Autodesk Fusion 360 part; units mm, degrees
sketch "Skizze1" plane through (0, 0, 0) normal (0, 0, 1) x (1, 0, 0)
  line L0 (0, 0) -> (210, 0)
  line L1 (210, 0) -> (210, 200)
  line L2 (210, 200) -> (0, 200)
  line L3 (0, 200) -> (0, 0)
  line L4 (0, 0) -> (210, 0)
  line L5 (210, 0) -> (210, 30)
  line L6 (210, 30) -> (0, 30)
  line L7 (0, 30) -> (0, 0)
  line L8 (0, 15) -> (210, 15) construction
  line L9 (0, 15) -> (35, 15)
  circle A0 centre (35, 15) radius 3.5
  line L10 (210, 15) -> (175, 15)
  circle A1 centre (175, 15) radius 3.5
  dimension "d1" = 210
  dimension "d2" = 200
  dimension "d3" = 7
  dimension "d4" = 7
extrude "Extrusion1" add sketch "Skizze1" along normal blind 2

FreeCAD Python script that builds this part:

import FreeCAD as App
import Part
import Sketcher

doc = App.newDocument("Part")
body = doc.addObject("PartDesign::Body", "Body")

# Sketch on XY plane
sketch1 = body.newObject("Sketcher::SketchObject", "Sketch")
sketch1.AttachmentSupport = (doc.getObject("XY_Plane"), [""])
sketch1.MapMode = "FlatFace"
sketch1.addGeometry([
    Part.LineSegment(App.Vector(0, 15, 0), App.Vector(0, 0, 0)),  # 0
    Part.LineSegment(App.Vector(0, 0, 0), App.Vector(210, 0, 0)),  # 1
    Part.LineSegment(App.Vector(210, 0, 0), App.Vector(210, 15, 0)),  # 2
    Part.LineSegment(App.Vector(210, 15, 0), App.Vector(210, 200, 0)),  # 3
    Part.LineSegment(App.Vector(210, 200, 0), App.Vector(0, 200, 0)),  # 4
    Part.LineSegment(App.Vector(0, 200, 0), App.Vector(0, 15, 0)),  # 5
    Part.Circle(App.Vector(35, 15, 0), App.Vector(0, 0, 1), 3.5),  # 6
    Part.Circle(App.Vector(175, 15, 0), App.Vector(0, 0, 1), 3.5),  # 7
], False)
sketch1.addConstraint([
    Sketcher.Constraint("Coincident", 0, 2, 1, 1),
    Sketcher.Constraint("Coincident", 1, 2, 2, 1),
    Sketcher.Constraint("Coincident", 2, 2, 3, 1),
    Sketcher.Constraint("Coincident", 3, 2, 4, 1),
    Sketcher.Constraint("Coincident", 4, 2, 5, 1),
    Sketcher.Constraint("Coincident", 5, 2, 0, 1),
    Sketcher.Constraint("Vertical", 0),
    Sketcher.Constraint("Horizontal", 1),
    Sketcher.Constraint("Vertical", 2),
    Sketcher.Constraint("Vertical", 3),
    Sketcher.Constraint("Horizontal", 4),
    Sketcher.Constraint("Vertical", 5),
    Sketcher.Constraint("Coincident", 0, 2, -1, 1),
    Sketcher.Constraint("Equal", 6, 7),
    Sketcher.Constraint("Horizontal", 6, 3, 7, 3),
    Sketcher.Constraint("Horizontal", 7, 3, 2, 2),
    Sketcher.Constraint("Horizontal", 2, 2, 5, 2),
    Sketcher.Constraint("Diameter", 6, 7.0),
    Sketcher.Constraint("DistanceX", 1, 1, 1, 2, 210.0),
    Sketcher.Constraint("DistanceY", -1, 1, 3, 2, 200.0),
    Sketcher.Constraint("DistanceY", 0, 2, 0, 1, 15.0),
    Sketcher.Constraint("DistanceX", -1, 1, 6, 3, 35.0),
    Sketcher.Constraint("DistanceX", -1, 1, 7, 3, 175.0),
])
pad1 = body.newObject("PartDesign::Pad", "Pad")
pad1.Profile = sketch1
pad1.Length = 2

doc.recompute()
